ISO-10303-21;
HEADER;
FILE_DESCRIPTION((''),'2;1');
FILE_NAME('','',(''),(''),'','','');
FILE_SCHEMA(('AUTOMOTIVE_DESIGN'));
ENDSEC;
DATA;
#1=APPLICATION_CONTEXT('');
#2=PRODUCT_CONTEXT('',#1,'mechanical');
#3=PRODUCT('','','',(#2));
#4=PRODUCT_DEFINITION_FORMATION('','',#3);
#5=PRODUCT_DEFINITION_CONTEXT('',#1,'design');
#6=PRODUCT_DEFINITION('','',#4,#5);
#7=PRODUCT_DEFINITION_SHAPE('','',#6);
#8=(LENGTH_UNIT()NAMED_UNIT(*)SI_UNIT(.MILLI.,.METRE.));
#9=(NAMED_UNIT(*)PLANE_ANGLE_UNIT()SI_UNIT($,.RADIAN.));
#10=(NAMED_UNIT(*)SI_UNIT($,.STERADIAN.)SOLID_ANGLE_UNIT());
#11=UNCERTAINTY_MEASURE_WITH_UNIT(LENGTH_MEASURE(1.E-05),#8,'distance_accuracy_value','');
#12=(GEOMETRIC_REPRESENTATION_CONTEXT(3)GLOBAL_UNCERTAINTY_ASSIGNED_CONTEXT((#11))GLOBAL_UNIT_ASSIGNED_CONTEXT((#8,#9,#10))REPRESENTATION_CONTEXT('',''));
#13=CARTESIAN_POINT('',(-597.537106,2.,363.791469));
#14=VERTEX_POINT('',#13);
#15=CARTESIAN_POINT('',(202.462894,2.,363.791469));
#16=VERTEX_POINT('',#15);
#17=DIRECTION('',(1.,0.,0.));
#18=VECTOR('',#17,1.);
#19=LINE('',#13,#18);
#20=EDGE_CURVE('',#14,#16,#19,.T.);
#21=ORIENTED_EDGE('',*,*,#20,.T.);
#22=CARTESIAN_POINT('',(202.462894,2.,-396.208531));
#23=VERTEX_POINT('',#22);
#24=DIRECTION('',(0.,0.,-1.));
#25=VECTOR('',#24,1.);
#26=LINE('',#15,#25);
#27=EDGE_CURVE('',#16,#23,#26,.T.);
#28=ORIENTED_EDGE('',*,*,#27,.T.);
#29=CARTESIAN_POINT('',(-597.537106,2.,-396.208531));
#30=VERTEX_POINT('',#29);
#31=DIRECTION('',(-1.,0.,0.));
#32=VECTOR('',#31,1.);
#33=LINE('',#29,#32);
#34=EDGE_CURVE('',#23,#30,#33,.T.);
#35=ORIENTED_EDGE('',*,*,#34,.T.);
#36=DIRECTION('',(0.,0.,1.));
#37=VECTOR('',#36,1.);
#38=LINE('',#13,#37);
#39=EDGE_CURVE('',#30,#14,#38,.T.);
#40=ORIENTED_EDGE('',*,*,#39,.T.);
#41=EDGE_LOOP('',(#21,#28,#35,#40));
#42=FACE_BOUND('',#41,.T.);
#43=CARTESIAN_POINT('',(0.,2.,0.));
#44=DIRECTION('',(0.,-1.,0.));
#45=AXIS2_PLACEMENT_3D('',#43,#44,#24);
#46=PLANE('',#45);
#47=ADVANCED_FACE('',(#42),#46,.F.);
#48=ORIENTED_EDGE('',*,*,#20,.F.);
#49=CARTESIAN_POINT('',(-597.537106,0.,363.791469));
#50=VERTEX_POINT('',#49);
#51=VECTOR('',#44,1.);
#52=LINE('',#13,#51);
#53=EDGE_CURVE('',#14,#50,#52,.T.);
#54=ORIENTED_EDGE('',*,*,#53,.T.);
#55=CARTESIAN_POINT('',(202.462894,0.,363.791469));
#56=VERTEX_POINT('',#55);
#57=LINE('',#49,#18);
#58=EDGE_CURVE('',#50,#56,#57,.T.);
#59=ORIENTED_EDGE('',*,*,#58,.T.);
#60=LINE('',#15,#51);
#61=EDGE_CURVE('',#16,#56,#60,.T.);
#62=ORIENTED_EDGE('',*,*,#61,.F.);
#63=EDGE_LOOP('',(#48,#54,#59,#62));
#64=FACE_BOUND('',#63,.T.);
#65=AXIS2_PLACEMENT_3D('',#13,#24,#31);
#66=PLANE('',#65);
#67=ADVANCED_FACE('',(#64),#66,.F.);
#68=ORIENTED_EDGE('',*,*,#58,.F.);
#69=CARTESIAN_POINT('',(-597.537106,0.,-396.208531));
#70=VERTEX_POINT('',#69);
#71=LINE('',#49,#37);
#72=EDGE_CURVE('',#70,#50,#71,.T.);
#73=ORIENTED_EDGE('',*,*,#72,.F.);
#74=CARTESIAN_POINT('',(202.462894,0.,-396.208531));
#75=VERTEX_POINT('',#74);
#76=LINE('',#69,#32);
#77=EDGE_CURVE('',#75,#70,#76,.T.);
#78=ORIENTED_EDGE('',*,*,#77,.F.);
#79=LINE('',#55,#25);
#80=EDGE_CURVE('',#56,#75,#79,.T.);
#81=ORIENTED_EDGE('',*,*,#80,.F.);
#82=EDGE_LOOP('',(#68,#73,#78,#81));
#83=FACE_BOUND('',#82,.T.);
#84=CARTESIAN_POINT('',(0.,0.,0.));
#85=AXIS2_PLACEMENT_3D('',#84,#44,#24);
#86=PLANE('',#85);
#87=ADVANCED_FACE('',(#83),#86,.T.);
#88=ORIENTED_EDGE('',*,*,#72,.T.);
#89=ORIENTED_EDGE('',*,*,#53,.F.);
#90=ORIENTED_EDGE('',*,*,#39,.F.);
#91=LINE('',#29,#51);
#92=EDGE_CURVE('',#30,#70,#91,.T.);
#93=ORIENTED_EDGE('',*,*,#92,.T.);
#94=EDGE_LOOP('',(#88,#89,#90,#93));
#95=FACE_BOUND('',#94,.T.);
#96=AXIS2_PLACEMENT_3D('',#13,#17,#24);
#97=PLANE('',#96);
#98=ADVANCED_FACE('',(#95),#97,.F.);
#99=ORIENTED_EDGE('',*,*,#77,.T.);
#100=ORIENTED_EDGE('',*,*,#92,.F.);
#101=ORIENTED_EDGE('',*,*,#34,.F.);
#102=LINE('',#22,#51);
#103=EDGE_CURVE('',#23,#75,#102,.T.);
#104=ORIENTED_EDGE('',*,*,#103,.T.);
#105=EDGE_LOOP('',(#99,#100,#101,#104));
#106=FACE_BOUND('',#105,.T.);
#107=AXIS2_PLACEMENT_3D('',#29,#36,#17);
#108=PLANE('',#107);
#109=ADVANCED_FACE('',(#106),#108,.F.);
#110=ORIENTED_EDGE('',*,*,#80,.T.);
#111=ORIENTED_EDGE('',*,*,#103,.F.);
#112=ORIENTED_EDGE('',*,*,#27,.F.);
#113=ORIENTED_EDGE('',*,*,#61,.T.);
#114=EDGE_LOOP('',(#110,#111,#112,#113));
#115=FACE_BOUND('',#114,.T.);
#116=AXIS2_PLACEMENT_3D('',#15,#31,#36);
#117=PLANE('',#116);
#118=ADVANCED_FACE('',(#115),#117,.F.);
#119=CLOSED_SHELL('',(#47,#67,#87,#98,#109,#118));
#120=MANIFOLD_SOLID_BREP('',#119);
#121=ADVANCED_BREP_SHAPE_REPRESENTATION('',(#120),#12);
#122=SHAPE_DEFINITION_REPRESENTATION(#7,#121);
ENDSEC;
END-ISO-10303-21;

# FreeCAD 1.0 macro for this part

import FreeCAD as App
import Part
import Sketcher
Q = App.Units.Quantity


def add_polygon(sketch, points):
    """Adds a closed chain of lines whose ends are joined by coincident constraints."""
    first, n = sketch.GeometryCount, len(points)
    for a, b in zip(points, points[1:] + points[:1]):
        sketch.addGeometry(Part.LineSegment(App.Vector(*a, 0), App.Vector(*b, 0)), False)
    for i in range(n):
        sketch.addConstraint(Sketcher.Constraint("Coincident", first + i, 2, first + (i + 1) % n, 1))

doc = App.newDocument("Part")
body = doc.addObject("PartDesign::Body", "Body")

sketch1 = body.newObject("Sketcher::SketchObject", "Sketch")
sketch1.AttachmentSupport = (doc.getObject("XZ_Plane"), [""])
sketch1.MapMode = "FlatFace"
add_polygon(sketch1, [(-597.537106, -396.208531), (-597.537106, 363.791469), (202.462894, 363.791469), (202.462894, -396.208531)])
sketch1.addConstraint(Sketcher.Constraint("Vertical", 0))
sketch1.addConstraint(Sketcher.Constraint("Horizontal", 1))
sketch1.addConstraint(Sketcher.Constraint("Vertical", 2))
sketch1.addConstraint(Sketcher.Constraint("Horizontal", 3))
sketch1.addConstraint(Sketcher.Constraint("DistanceX", 1, 1, 1, 2, Q("800 mm")))
sketch1.addConstraint(Sketcher.Constraint("DistanceY", 0, 1, 0, 2, Q("760 mm")))
sketch1.addConstraint(Sketcher.Constraint("DistanceY", -1, 1, 0, 2, Q("363.791469 mm")))
sketch1.addConstraint(Sketcher.Constraint("DistanceX", 0, 2, -1, 1, Q("597.537106 mm")))
pad1 = body.newObject("PartDesign::Pad", "Pad")
pad1.Profile = sketch1
pad1.Length = 2
pad1.Reversed = True

doc.recompute()
